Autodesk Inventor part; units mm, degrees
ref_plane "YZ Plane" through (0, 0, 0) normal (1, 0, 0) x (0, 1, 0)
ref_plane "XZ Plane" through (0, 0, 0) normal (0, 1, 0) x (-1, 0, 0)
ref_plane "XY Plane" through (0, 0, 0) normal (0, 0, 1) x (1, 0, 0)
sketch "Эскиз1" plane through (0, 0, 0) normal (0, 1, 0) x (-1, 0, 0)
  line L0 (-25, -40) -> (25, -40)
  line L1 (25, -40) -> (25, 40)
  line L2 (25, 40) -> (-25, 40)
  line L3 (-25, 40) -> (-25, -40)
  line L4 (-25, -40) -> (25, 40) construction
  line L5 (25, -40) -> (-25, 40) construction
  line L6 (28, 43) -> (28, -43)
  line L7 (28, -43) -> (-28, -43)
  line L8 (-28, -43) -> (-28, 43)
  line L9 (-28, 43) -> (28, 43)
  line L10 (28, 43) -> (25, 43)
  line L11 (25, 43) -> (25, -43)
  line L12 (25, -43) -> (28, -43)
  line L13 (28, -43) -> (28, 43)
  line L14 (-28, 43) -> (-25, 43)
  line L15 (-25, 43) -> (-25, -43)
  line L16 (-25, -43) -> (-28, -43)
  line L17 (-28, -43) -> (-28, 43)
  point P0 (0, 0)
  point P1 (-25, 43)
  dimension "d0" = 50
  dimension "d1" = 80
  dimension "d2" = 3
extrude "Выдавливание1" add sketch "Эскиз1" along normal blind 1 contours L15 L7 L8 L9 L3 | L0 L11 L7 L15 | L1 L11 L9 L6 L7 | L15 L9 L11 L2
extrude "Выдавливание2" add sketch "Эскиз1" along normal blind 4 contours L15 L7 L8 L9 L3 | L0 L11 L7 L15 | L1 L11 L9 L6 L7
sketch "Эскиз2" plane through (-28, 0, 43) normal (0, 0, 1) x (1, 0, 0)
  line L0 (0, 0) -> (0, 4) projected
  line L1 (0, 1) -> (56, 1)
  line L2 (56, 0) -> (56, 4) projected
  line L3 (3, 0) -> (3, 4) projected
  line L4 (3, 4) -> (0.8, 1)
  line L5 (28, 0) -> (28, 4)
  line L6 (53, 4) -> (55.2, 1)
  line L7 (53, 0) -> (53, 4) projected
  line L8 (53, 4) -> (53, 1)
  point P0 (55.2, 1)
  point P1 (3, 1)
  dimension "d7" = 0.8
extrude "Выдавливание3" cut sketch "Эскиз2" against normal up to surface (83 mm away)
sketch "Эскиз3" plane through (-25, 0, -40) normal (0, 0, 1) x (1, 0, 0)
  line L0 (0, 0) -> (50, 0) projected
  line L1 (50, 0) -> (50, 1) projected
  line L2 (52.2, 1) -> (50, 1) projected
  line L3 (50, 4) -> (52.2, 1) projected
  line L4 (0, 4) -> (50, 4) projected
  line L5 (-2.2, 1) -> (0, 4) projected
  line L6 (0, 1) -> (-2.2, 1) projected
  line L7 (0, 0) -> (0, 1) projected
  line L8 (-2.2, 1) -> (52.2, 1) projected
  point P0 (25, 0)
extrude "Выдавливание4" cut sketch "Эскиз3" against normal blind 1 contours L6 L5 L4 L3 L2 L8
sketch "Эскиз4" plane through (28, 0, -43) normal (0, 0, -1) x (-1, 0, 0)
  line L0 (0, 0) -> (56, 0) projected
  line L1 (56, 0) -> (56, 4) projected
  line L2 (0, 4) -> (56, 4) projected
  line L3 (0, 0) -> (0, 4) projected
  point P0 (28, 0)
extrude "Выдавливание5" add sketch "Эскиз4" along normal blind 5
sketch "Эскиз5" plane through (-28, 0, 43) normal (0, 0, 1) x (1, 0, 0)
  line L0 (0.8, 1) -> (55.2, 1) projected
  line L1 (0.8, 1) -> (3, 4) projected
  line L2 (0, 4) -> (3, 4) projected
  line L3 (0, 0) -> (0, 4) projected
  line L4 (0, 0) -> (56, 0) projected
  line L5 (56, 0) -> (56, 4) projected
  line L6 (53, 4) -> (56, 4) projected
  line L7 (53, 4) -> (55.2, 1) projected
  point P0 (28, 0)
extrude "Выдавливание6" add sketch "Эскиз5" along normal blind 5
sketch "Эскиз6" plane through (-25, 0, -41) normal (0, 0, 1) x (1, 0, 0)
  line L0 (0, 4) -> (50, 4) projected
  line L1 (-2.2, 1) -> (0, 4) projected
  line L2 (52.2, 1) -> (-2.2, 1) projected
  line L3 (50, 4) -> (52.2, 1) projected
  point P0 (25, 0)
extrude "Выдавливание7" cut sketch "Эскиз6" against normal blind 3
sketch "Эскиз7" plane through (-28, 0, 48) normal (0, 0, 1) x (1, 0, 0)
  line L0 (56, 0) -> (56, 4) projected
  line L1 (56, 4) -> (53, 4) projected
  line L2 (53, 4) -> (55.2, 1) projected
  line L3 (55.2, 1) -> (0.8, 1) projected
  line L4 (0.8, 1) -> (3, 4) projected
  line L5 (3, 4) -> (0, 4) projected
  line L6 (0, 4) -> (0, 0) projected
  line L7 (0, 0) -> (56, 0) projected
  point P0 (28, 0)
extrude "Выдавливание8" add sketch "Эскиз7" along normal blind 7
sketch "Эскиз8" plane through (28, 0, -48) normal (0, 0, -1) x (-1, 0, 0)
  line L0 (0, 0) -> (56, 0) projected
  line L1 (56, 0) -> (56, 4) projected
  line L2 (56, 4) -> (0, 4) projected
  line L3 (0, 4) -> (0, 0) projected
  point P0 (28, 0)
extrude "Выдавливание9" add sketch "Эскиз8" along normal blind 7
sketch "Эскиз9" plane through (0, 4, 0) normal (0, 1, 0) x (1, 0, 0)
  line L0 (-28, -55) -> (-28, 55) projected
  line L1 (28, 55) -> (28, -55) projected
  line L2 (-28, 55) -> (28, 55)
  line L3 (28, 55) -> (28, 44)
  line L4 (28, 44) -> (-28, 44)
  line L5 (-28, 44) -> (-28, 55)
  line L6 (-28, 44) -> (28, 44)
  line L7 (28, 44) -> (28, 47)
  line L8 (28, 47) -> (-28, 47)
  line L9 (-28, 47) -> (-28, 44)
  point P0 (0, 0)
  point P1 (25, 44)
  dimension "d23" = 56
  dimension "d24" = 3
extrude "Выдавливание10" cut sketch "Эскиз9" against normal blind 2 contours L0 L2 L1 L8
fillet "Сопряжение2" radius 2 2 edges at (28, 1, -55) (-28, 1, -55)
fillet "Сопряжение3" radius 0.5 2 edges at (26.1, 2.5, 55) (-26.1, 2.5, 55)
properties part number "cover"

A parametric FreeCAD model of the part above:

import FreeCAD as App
import Part
import Sketcher
from FreeCAD import Vector
Q = App.Units.Quantity


def edges_at(feature, points):
    """Names of the edges that pass closest to the given points."""
    edges = feature.Shape.Edges
    near = lambda p: min(range(len(edges)), key=lambda i: edges[i].distToShape(Part.Vertex(*p))[0])
    return sorted({f"Edge{near(p) + 1}" for p in points})


def add_polygon(sketch, points):
    """Adds a closed chain of lines whose ends are joined by coincident constraints."""
    first, n = sketch.GeometryCount, len(points)
    for a, b in zip(points, points[1:] + points[:1]):
        sketch.addGeometry(Part.LineSegment(App.Vector(*a, 0), App.Vector(*b, 0)), False)
    for i in range(n):
        sketch.addConstraint(Sketcher.Constraint("Coincident", first + i, 2, first + (i + 1) % n, 1))

doc = App.newDocument("Part")
body = doc.addObject("PartDesign::Body", "Body")

sketch1 = doc.addObject("Sketcher::SketchObject", "Sketch")
body.addObject(sketch1)
sketch1.AttachmentSupport = (doc.XZ_Plane, [""])
sketch1.MapMode = "FlatFace"
add_polygon(sketch1, [(28, -43), (-28, -43), (-28, 43), (28, 43)])
add_polygon(sketch1, [(25, -40), (25, 40), (-25, 40), (-25, -40)])
sketch1.addConstraint([
    Sketcher.Constraint("Horizontal", 0),
    Sketcher.Constraint("Vertical", 1),
    Sketcher.Constraint("Horizontal", 2),
    Sketcher.Constraint("Vertical", 3),
    Sketcher.Constraint("Vertical", 4),
    Sketcher.Constraint("Horizontal", 5),
    Sketcher.Constraint("Vertical", 6),
    Sketcher.Constraint("Horizontal", 7),
    Sketcher.Constraint("Symmetric", 0, 2, 2, 2, -1, 1),
    Sketcher.Constraint("Symmetric", 4, 2, 6, 2, -1, 1),
    Sketcher.Constraint("DistanceX", 5, 2, 5, 1, Q("50 mm")),
    Sketcher.Constraint("DistanceY", 4, 1, 4, 2, Q("80 mm")),
    Sketcher.Constraint("DistanceX", 4, 2, 2, 2, Q("3 mm")),
    Sketcher.Constraint("DistanceY", 4, 2, 2, 2, Q("3 mm")),
])
pad1 = doc.addObject("PartDesign::Pad", "Pad")
body.addObject(pad1)
pad1.Profile = sketch1
pad1.Length = 1
pad1.Reversed = True

sketch2 = doc.addObject("Sketcher::SketchObject", "Sketch001")
body.addObject(sketch2)
sketch2.AttachmentSupport = (doc.XZ_Plane, [""])
sketch2.MapMode = "FlatFace"
add_polygon(sketch2, [(28, -43), (-28, -43), (-28, 43), (-25, 43), (-25, -40), (25, -40), (25, 43), (28, 43)])
sketch2.addConstraint([
    Sketcher.Constraint("Horizontal", 0),
    Sketcher.Constraint("Vertical", 1),
    Sketcher.Constraint("Horizontal", 2),
    Sketcher.Constraint("Vertical", 3),
    Sketcher.Constraint("Horizontal", 4),
    Sketcher.Constraint("Vertical", 5),
    Sketcher.Constraint("Horizontal", 6),
    Sketcher.Constraint("Vertical", 7),
    Sketcher.Constraint("Symmetric", 0, 2, 6, 2, -1, 1),
    Sketcher.Constraint("Symmetric", 2, 2, 5, 2, -2),
    Sketcher.Constraint("DistanceX", 2, 1, 2, 2, Q("3 mm")),
    Sketcher.Constraint("DistanceX", 4, 1, 4, 2, Q("50 mm")),
    Sketcher.Constraint("DistanceY", 0, 2, 3, 2, Q("3 mm")),
    Sketcher.Constraint("DistanceY", 1, 1, 1, 2, Q("86 mm")),
])
pad2 = doc.addObject("PartDesign::Pad", "Pad001")
body.addObject(pad2)
pad2.Profile = sketch2
pad2.Length = 4
pad2.Reversed = True

sketch3 = doc.addObject("Sketcher::SketchObject", "Sketch002")
body.addObject(sketch3)
sketch3.AttachmentSupport = (doc.XY_Plane, [""])
sketch3.MapMode = "FlatFace"
sketch3.AttachmentOffset = App.Placement(Vector(0, 0, 43), App.Rotation())
add_polygon(sketch3, [(25, 4), (25, 1), (27.2, 1)])
add_polygon(sketch3, [(-27.2, 1), (-25, 1), (-25, 4)])
sketch3.addConstraint([
    Sketcher.Constraint("Vertical", 0),
    Sketcher.Constraint("Horizontal", 1),
    Sketcher.Constraint("Horizontal", 3),
    Sketcher.Constraint("Vertical", 4),
    Sketcher.Constraint("Symmetric", 0, 2, 3, 2, -2),
    Sketcher.Constraint("Horizontal", 2, 2, 4, 2),
    Sketcher.Constraint("Equal", 1, 3),
    Sketcher.Constraint("DistanceY", 0, 2, 0, 1, Q("3 mm")),
    Sketcher.Constraint("DistanceX", 1, 1, 1, 2, Q("2.2 mm")),
    Sketcher.Constraint("DistanceX", -1, 1, 0, 2, Q("25 mm")),
    Sketcher.Constraint("DistanceY", -1, 1, 0, 2, Q("1 mm")),
])
pocket1 = doc.addObject("PartDesign::Pocket", "Pocket")
body.addObject(pocket1)
pocket1.Profile = sketch3
pocket1.Length = 83

sketch4 = doc.addObject("Sketcher::SketchObject", "Sketch003")
body.addObject(sketch4)
sketch4.AttachmentSupport = (doc.XY_Plane, [""])
sketch4.MapMode = "FlatFace"
sketch4.AttachmentOffset = App.Placement(Vector(0, 0, -40), App.Rotation())
add_polygon(sketch4, [(-27.2, 1), (27.2, 1), (25, 4), (-25, 4)])
sketch4.addConstraint([
    Sketcher.Constraint("Horizontal", 0),
    Sketcher.Constraint("Horizontal", 2),
    Sketcher.Constraint("Equal", 1, 3),
    Sketcher.Constraint("DistanceX", 2, 2, 2, 1, Q("50 mm")),
    Sketcher.Constraint("DistanceX", 0, 1, 0, 2, Q("54.4 mm")),
    Sketcher.Constraint("DistanceY", -1, 1, 0, 2, Q("1 mm")),
    Sketcher.Constraint("DistanceX", -1, 1, 1, 2, Q("25 mm")),
    Sketcher.Constraint("DistanceY", -1, 1, 1, 2, Q("4 mm")),
])
pocket2 = doc.addObject("PartDesign::Pocket", "Pocket001")
body.addObject(pocket2)
pocket2.Profile = sketch4
pocket2.Length = 1

sketch5 = doc.addObject("Sketcher::SketchObject", "Sketch004")
body.addObject(sketch5)
sketch5.AttachmentSupport = (doc.XY_Plane, [""])
sketch5.MapMode = "FlatFace"
sketch5.AttachmentOffset = App.Placement(Vector(0, 0, -43), App.Rotation())
add_polygon(sketch5, [(28, 4), (28, 0), (-28, 0), (-28, 4)])
sketch5.addConstraint([
    Sketcher.Constraint("Vertical", 0),
    Sketcher.Constraint("Horizontal", 1),
    Sketcher.Constraint("Vertical", 2),
    Sketcher.Constraint("Horizontal", 3),
    Sketcher.Constraint("Symmetric", 0, 2, 1, 2, -1, 1),
    Sketcher.Constraint("DistanceX", 1, 2, 1, 1, Q("56 mm")),
    Sketcher.Constraint("DistanceY", 0, 2, 0, 1, Q("4 mm")),
])
pad3 = doc.addObject("PartDesign::Pad", "Pad002")
body.addObject(pad3)
pad3.Profile = sketch5
pad3.Length = 5
pad3.Reversed = True

sketch6 = doc.addObject("Sketcher::SketchObject", "Sketch005")
body.addObject(sketch6)
sketch6.AttachmentSupport = (doc.XY_Plane, [""])
sketch6.MapMode = "FlatFace"
sketch6.AttachmentOffset = App.Placement(Vector(0, 0, 43), App.Rotation())
add_polygon(sketch6, [(27.2, 1), (-27.2, 1), (-25, 4), (-28, 4), (-28, 0), (28, 0), (28, 4), (25, 4)])
sketch6.addConstraint([
    Sketcher.Constraint("Horizontal", 0),
    Sketcher.Constraint("Horizontal", 2),
    Sketcher.Constraint("Vertical", 3),
    Sketcher.Constraint("Horizontal", 4),
    Sketcher.Constraint("Vertical", 5),
    Sketcher.Constraint("Horizontal", 6),
    Sketcher.Constraint("Symmetric", 3, 2, 4, 2, -1, 1),
    Sketcher.Constraint("Symmetric", 1, 2, 6, 2, -2),
    Sketcher.Constraint("Equal", 1, 7),
    Sketcher.Constraint("DistanceX", 2, 2, 2, 1, Q("3 mm")),
    Sketcher.Constraint("DistanceX", 4, 1, 4, 2, Q("56 mm")),
    Sketcher.Constraint("DistanceY", 3, 2, 3, 1, Q("4 mm")),
    Sketcher.Constraint("DistanceX", 0, 2, 0, 1, Q("54.4 mm")),
    Sketcher.Constraint("DistanceY", -1, 1, 0, 2, Q("1 mm")),
])
pad4 = doc.addObject("PartDesign::Pad", "Pad003")
body.addObject(pad4)
pad4.Profile = sketch6
pad4.Length = 5

sketch7 = doc.addObject("Sketcher::SketchObject", "Sketch006")
body.addObject(sketch7)
sketch7.AttachmentSupport = (doc.XY_Plane, [""])
sketch7.MapMode = "FlatFace"
sketch7.AttachmentOffset = App.Placement(Vector(0, 0, -41), App.Rotation())
add_polygon(sketch7, [(25, 4), (-25, 4), (-27.2, 1), (27.2, 1)])
sketch7.addConstraint([
    Sketcher.Constraint("Horizontal", 0),
    Sketcher.Constraint("Horizontal", 2),
    Sketcher.Constraint("Equal", 1, 3),
    Sketcher.Constraint("DistanceX", 0, 2, 0, 1, Q("50 mm")),
    Sketcher.Constraint("DistanceX", 2, 1, 2, 2, Q("54.4 mm")),
    Sketcher.Constraint("DistanceX", 0, 2, -1, 1, Q("25 mm")),
    Sketcher.Constraint("DistanceY", -1, 1, 0, 2, Q("4 mm")),
    Sketcher.Constraint("DistanceY", -1, 1, 1, 2, Q("1 mm")),
])
pocket3 = doc.addObject("PartDesign::Pocket", "Pocket002")
body.addObject(pocket3)
pocket3.Profile = sketch7
pocket3.Length = 3

sketch8 = doc.addObject("Sketcher::SketchObject", "Sketch007")
body.addObject(sketch8)
sketch8.AttachmentSupport = (doc.XY_Plane, [""])
sketch8.MapMode = "FlatFace"
sketch8.AttachmentOffset = App.Placement(Vector(0, 0, 48), App.Rotation())
add_polygon(sketch8, [(-28, 0), (28, 0), (28, 4), (25, 4), (27.2, 1), (-27.2, 1), (-25, 4), (-28, 4)])
sketch8.addConstraint([
    Sketcher.Constraint("Horizontal", 0),
    Sketcher.Constraint("Vertical", 1),
    Sketcher.Constraint("Horizontal", 2),
    Sketcher.Constraint("Horizontal", 4),
    Sketcher.Constraint("Horizontal", 6),
    Sketcher.Constraint("Vertical", 7),
    Sketcher.Constraint("Symmetric", 0, 2, 7, 2, -1, 1),
    Sketcher.Constraint("Symmetric", 2, 2, 5, 2, -2),
    Sketcher.Constraint("Equal", 3, 5),
    Sketcher.Constraint("DistanceX", 0, 1, 0, 2, Q("56 mm")),
    Sketcher.Constraint("DistanceX", 2, 2, 2, 1, Q("3 mm")),
    Sketcher.Constraint("DistanceY", 1, 1, 1, 2, Q("4 mm")),
    Sketcher.Constraint("DistanceX", 4, 2, 4, 1, Q("54.4 mm")),
    Sketcher.Constraint("DistanceY", -1, 1, 3, 2, Q("1 mm")),
])
pad5 = doc.addObject("PartDesign::Pad", "Pad004")
body.addObject(pad5)
pad5.Profile = sketch8
pad5.Length = 7

sketch9 = doc.addObject("Sketcher::SketchObject", "Sketch008")
body.addObject(sketch9)
sketch9.AttachmentSupport = (doc.XY_Plane, [""])
sketch9.MapMode = "FlatFace"
sketch9.AttachmentOffset = App.Placement(Vector(0, 0, -48), App.Rotation())
add_polygon(sketch9, [(28, 4), (28, 0), (-28, 0), (-28, 4)])
sketch9.addConstraint([
    Sketcher.Constraint("Vertical", 0),
    Sketcher.Constraint("Horizontal", 1),
    Sketcher.Constraint("Vertical", 2),
    Sketcher.Constraint("Horizontal", 3),
    Sketcher.Constraint("Symmetric", 0, 2, 1, 2, -1, 1),
    Sketcher.Constraint("DistanceX", 1, 2, 1, 1, Q("56 mm")),
    Sketcher.Constraint("DistanceY", 0, 2, 0, 1, Q("4 mm")),
])
pad6 = doc.addObject("PartDesign::Pad", "Pad005")
body.addObject(pad6)
pad6.Profile = sketch9
pad6.Length = 7
pad6.Reversed = True

sketch10 = doc.addObject("Sketcher::SketchObject", "Sketch009")
body.addObject(sketch10)
sketch10.AttachmentSupport = (doc.XZ_Plane, [""])
sketch10.MapMode = "FlatFace"
sketch10.AttachmentOffset = App.Placement(Vector(0, 0, -4), App.Rotation())
add_polygon(sketch10, [(-28, -55), (-28, -47), (28, -47), (28, -55)])
sketch10.addConstraint([
    Sketcher.Constraint("Vertical", 0),
    Sketcher.Constraint("Horizontal", 1),
    Sketcher.Constraint("Vertical", 2),
    Sketcher.Constraint("Horizontal", 3),
    Sketcher.Constraint("DistanceX", 1, 1, 1, 2, Q("56 mm")),
    Sketcher.Constraint("DistanceY", 0, 1, 0, 2, Q("8 mm")),
    Sketcher.Constraint("DistanceX", 0, 2, -1, 1, Q("28 mm")),
    Sketcher.Constraint("DistanceY", 0, 2, -1, 1, Q("47 mm")),
])
pocket4 = doc.addObject("PartDesign::Pocket", "Pocket003")
body.addObject(pocket4)
pocket4.Profile = sketch10
pocket4.Length = 2
pocket4.Reversed = True
doc.recompute()

fillet = doc.addObject("PartDesign::Fillet", "Fillet")
body.addObject(fillet)
fillet.Base = (pocket4, edges_at(pocket4, [(28, 1, -55), (-28, 1, -55)]))
fillet.Radius = 2
doc.recompute()

fillet2 = doc.addObject("PartDesign::Fillet", "Fillet001")
body.addObject(fillet2)
fillet2.Base = (fillet, edges_at(fillet, [(26.1, 2.5, 55), (-26.1, 2.5, 55)]))
fillet2.Radius = 0.5

doc.recompute()
